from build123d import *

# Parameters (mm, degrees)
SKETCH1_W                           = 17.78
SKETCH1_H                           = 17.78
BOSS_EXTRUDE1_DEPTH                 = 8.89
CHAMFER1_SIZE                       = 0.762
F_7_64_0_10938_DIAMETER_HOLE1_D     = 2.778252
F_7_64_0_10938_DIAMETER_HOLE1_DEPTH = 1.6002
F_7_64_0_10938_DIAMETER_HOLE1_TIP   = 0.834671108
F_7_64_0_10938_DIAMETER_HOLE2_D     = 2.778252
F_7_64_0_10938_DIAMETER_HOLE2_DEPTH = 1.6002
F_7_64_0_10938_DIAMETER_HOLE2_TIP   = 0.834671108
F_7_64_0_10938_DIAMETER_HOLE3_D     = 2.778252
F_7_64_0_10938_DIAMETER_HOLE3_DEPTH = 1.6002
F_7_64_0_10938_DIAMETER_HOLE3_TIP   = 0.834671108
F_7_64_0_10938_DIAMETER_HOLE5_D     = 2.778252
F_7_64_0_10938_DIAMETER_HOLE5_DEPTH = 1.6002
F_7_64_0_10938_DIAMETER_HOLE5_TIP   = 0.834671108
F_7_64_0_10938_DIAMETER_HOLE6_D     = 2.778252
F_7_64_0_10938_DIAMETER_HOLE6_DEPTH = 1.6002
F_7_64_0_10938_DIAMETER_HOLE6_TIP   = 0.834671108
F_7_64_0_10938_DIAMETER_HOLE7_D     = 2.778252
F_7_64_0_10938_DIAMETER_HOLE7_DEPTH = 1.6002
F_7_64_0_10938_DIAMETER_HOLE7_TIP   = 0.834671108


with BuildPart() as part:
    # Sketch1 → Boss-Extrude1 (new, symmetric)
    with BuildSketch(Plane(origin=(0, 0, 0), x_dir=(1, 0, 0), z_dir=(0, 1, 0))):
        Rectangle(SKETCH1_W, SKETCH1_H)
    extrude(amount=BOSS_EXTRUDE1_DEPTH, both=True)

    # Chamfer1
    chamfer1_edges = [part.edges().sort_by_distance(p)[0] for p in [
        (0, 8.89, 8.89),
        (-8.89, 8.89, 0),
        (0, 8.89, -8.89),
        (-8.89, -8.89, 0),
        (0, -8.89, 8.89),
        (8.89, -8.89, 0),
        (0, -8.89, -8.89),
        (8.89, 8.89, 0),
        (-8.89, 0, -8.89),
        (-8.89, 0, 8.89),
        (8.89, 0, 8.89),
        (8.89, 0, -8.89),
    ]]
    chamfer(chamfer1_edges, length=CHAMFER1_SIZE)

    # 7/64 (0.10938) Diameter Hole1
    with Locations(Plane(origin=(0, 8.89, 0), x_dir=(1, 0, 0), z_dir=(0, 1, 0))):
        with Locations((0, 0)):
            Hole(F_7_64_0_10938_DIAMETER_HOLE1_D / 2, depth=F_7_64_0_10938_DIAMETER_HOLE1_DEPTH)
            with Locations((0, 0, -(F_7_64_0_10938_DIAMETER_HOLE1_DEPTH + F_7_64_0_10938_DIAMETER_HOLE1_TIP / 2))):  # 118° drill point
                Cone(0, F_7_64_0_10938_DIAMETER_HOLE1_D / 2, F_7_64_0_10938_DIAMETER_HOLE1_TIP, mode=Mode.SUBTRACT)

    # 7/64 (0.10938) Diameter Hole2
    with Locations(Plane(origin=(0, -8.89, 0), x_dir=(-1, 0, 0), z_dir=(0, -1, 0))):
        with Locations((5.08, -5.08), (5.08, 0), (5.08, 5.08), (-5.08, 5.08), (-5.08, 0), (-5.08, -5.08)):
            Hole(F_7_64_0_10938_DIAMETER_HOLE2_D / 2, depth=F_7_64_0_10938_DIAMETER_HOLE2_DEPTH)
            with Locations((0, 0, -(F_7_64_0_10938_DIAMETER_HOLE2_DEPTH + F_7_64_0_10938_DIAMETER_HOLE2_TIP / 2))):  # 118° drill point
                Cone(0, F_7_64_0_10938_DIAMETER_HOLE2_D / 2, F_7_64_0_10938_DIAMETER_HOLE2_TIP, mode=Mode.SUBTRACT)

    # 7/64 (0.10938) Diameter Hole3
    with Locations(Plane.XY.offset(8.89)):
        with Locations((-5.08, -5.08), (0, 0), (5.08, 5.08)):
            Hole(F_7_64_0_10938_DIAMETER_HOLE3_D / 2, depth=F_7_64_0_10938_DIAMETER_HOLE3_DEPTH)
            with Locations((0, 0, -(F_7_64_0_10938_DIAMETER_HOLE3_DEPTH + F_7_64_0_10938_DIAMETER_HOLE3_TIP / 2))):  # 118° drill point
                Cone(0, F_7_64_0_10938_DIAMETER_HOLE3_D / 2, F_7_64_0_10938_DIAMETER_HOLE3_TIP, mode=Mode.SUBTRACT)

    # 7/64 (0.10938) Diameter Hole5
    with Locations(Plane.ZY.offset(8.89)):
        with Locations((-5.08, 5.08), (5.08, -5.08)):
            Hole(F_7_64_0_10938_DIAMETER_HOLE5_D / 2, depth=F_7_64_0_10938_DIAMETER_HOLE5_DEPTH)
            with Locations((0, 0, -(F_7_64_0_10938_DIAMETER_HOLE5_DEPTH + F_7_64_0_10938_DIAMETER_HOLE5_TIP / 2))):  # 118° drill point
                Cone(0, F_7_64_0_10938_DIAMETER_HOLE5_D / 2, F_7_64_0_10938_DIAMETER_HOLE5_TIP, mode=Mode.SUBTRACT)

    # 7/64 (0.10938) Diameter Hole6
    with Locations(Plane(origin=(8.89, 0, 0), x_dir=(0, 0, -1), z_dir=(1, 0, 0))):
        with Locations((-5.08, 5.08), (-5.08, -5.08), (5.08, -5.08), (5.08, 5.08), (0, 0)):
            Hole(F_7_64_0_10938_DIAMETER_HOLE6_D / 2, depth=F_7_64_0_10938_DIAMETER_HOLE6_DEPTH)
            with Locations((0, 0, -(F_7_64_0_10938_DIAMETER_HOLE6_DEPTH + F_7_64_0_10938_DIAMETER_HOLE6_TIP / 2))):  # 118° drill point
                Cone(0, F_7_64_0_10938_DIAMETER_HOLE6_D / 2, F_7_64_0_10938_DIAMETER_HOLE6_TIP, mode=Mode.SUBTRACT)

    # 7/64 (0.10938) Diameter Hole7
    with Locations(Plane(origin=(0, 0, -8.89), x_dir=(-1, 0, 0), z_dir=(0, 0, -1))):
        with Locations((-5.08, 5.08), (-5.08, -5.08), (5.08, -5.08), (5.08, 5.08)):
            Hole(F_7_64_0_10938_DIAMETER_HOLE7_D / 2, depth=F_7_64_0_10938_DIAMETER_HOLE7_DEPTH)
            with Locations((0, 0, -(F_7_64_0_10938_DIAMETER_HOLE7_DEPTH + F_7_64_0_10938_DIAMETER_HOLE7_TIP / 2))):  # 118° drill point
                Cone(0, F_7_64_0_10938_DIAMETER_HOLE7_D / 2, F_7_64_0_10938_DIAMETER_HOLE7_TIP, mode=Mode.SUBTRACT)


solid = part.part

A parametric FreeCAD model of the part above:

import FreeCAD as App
import Part
import Sketcher
from FreeCAD import Vector
Q = App.Units.Quantity

doc = App.newDocument("Part")
body = doc.addObject("PartDesign::Body", "Body")

# Sketch on XZ plane
sketch1 = body.newObject("Sketcher::SketchObject", "Sketch")
sketch1.AttachmentSupport = (doc.getObject("XZ_Plane"), [""])
sketch1.MapMode = "FlatFace"
sketch1.addGeometry([
    Part.LineSegment(Vector(-9, -9, 0), Vector(-9, 9, 0)),
    Part.LineSegment(Vector(-9, 9, 0), Vector(9, 9, 0)),
    Part.LineSegment(Vector(9, 9, 0), Vector(9, -9, 0)),
    Part.LineSegment(Vector(9, -9, 0), Vector(-9, -9, 0)),
], False)
sketch1.addConstraint([
    Sketcher.Constraint("Coincident", 0, 2, 1, 1),
    Sketcher.Constraint("Coincident", 1, 2, 2, 1),
    Sketcher.Constraint("Coincident", 2, 2, 3, 1),
    Sketcher.Constraint("Coincident", 3, 2, 0, 1),
    Sketcher.Constraint("Vertical", 0),
    Sketcher.Constraint("Horizontal", 1),
    Sketcher.Constraint("Vertical", 2),
    Sketcher.Constraint("Horizontal", 3),
    Sketcher.Constraint("Symmetric", 0, 2, 2, 2, -1, 1),
    Sketcher.Constraint("Equal", 3, 0),
    Sketcher.Constraint("DistanceX", 1, 1, 1, 2, Q("0.7 in")),
])
pad1 = body.newObject("PartDesign::Pad", "Pad")
pad1.Profile = sketch1
pad1.Length = Q("0.7 in")
pad1.Midplane = True
doc.recompute()

chamfer = body.newObject("PartDesign::Chamfer", "Chamfer")
chamfer.Base = (pad1, ["Edge1"])
chamfer.UseAllEdges = True
chamfer.Size = Q("0.03 in")

# Sketch on XZ plane
sketch2 = body.newObject("Sketcher::SketchObject", "Sketch001")
sketch2.AttachmentSupport = (doc.getObject("XZ_Plane"), [""])
sketch2.MapMode = "FlatFace"
sketch2.AttachmentOffset = App.Placement(Vector(0, 0, -0.35 * 25.4), App.Rotation())
sketch2.addGeometry(Part.Circle(Vector(0, 0, 0), Vector(0, 0, 1), 1.4), False)
sketch2.addConstraint([
    Sketcher.Constraint("Coincident", 0, 3, -1, 1),
    Sketcher.Constraint("Diameter", 0, 2.778252),
])
doc.recompute()
hole = body.newObject("PartDesign::Hole", "Hole")
hole.Profile = sketch2
hole.ThreadType = "None"
hole.Diameter = 2.778252
hole.DepthType = "Dimension"
hole.Depth = Q("0.063 in")
hole.DrillPoint = "Angled"
hole.DrillPointAngle = 118
hole.Reversed = True

# Sketch on XZ plane
sketch3 = body.newObject("Sketcher::SketchObject", "Sketch002")
sketch3.AttachmentSupport = (doc.getObject("XZ_Plane"), [""])
sketch3.MapMode = "FlatFace"
sketch3.AttachmentOffset = App.Placement(Vector(0, 0, 0.35 * 25.4), App.Rotation())
sketch3.addGeometry([
    Part.Circle(Vector(-5.1, 5.1, 0), Vector(0, 0, 1), 1.4),  # 0
    Part.Circle(Vector(-5.1, 0, 0), Vector(0, 0, 1), 1.4),  # 1
    Part.Circle(Vector(-5.1, -5.1, 0), Vector(0, 0, 1), 1.4),  # 2
    Part.Circle(Vector(5.1, -5.1, 0), Vector(0, 0, 1), 1.4),  # 3
    Part.Circle(Vector(5.1, 0, 0), Vector(0, 0, 1), 1.4),  # 4
    Part.Circle(Vector(5.1, 5.1, 0), Vector(0, 0, 1), 1.4),  # 5
], False)
sketch3.addConstraint([
    Sketcher.Constraint("Equal", 0, 1),
    Sketcher.Constraint("Equal", 1, 2),
    Sketcher.Constraint("Equal", 2, 3),
    Sketcher.Constraint("Equal", 3, 4),
    Sketcher.Constraint("Equal", 4, 5),
    Sketcher.Constraint("Symmetric", 0, 3, 3, 3, -1, 1),
    Sketcher.Constraint("Symmetric", 1, 3, 4, 3, -1, 1),
    Sketcher.Constraint("Symmetric", 2, 3, 5, 3, -1, 1),
    Sketcher.Constraint("Symmetric", 2, 3, 3, 3, -2),
    Sketcher.Constraint("PointOnObject", 1, 3, -1),
    Sketcher.Constraint("Vertical", 0, 3, 1, 3),
    Sketcher.Constraint("DistanceX", 0, 3, -1, 1, Q("0.2 in")),
    Sketcher.Constraint("DistanceY", -1, 1, 0, 3, Q("0.2 in")),
    Sketcher.Constraint("Diameter", 0, 2.778252),
])
doc.recompute()
hole2 = body.newObject("PartDesign::Hole", "Hole001")
hole2.Profile = sketch3
hole2.ThreadType = "None"
hole2.Diameter = 2.778252
hole2.DepthType = "Dimension"
hole2.Depth = Q("0.063 in")
hole2.DrillPoint = "Angled"
hole2.DrillPointAngle = 118

# Sketch on XY plane
sketch4 = body.newObject("Sketcher::SketchObject", "Sketch003")
sketch4.AttachmentSupport = (doc.getObject("XY_Plane"), [""])
sketch4.MapMode = "FlatFace"
sketch4.AttachmentOffset = App.Placement(Vector(0, 0, 0.35 * 25.4), App.Rotation())
sketch4.addGeometry([
    Part.Circle(Vector(-5.1, -5.1, 0), Vector(0, 0, 1), 1.4),
    Part.Circle(Vector(0, 0, 0), Vector(0, 0, 1), 1.4),
    Part.Circle(Vector(5.1, 5.1, 0), Vector(0, 0, 1), 1.4),
], False)
sketch4.addConstraint([
    Sketcher.Constraint("Coincident", 1, 3, -1, 1),
    Sketcher.Constraint("Equal", 0, 1),
    Sketcher.Constraint("Equal", 1, 2),
    Sketcher.Constraint("Symmetric", 0, 3, 2, 3, -1, 1),
    Sketcher.Constraint("DistanceX", 0, 3, -1, 1, Q("0.2 in")),
    Sketcher.Constraint("DistanceY", 0, 3, -1, 1, Q("0.2 in")),
    Sketcher.Constraint("Diameter", 0, 2.778252),
])
doc.recompute()
hole3 = body.newObject("PartDesign::Hole", "Hole002")
hole3.Profile = sketch4
hole3.ThreadType = "None"
hole3.Diameter = 2.778252
hole3.DepthType = "Dimension"
hole3.Depth = Q("0.063 in")
hole3.DrillPoint = "Angled"
hole3.DrillPointAngle = 118

# Sketch on YZ plane
sketch5 = body.newObject("Sketcher::SketchObject", "Sketch004")
sketch5.AttachmentSupport = (doc.getObject("YZ_Plane"), [""])
sketch5.MapMode = "FlatFace"
sketch5.AttachmentOffset = App.Placement(Vector(0, 0, -0.35 * 25.4), App.Rotation())
sketch5.addGeometry([
    Part.Circle(Vector(5.1, -5.1, 0), Vector(0, 0, 1), 1.4),
    Part.Circle(Vector(-5.1, 5.1, 0), Vector(0, 0, 1), 1.4),
], False)
sketch5.addConstraint([
    Sketcher.Constraint("Equal", 0, 1),
    Sketcher.Constraint("Symmetric", 0, 3, 1, 3, -1, 1),
    Sketcher.Constraint("DistanceX", -1, 1, 0, 3, Q("0.2 in")),
    Sketcher.Constraint("DistanceY", 0, 3, -1, 1, Q("0.2 in")),
    Sketcher.Constraint("Diameter", 0, 2.778252),
])
doc.recompute()
hole4 = body.newObject("PartDesign::Hole", "Hole003")
hole4.Profile = sketch5
hole4.ThreadType = "None"
hole4.Diameter = 2.778252
hole4.DepthType = "Dimension"
hole4.Depth = Q("0.063 in")
hole4.DrillPoint = "Angled"
hole4.DrillPointAngle = 118
hole4.Reversed = True

# Sketch on YZ plane
sketch6 = body.newObject("Sketcher::SketchObject", "Sketch005")
sketch6.AttachmentSupport = (doc.getObject("YZ_Plane"), [""])
sketch6.MapMode = "FlatFace"
sketch6.AttachmentOffset = App.Placement(Vector(0, 0, 0.35 * 25.4), App.Rotation())
sketch6.addGeometry([
    Part.Circle(Vector(5.1, 5.1, 0), Vector(0, 0, 1), 1.4),  # 0
    Part.Circle(Vector(-5.1, 5.1, 0), Vector(0, 0, 1), 1.4),  # 1
    Part.Circle(Vector(-5.1, -5.1, 0), Vector(0, 0, 1), 1.4),  # 2
    Part.Circle(Vector(5.1, -5.1, 0), Vector(0, 0, 1), 1.4),  # 3
    Part.Circle(Vector(0, 0, 0), Vector(0, 0, 1), 1.4),  # 4
], False)
sketch6.addConstraint([
    Sketcher.Constraint("Coincident", 4, 3, -1, 1),
    Sketcher.Constraint("Equal", 0, 1),
    Sketcher.Constraint("Equal", 1, 2),
    Sketcher.Constraint("Equal", 2, 3),
    Sketcher.Constraint("Equal", 3, 4),
    Sketcher.Constraint("Symmetric", 0, 3, 2, 3, -1, 1),
    Sketcher.Constraint("Symmetric", 1, 3, 3, 3, -1, 1),
    Sketcher.Constraint("Symmetric", 0, 3, 1, 3, -2),
    Sketcher.Constraint("DistanceX", -1, 1, 0, 3, Q("0.2 in")),
    Sketcher.Constraint("DistanceY", -1, 1, 0, 3, Q("0.2 in")),
    Sketcher.Constraint("Diameter", 0, 2.778252),
])
doc.recompute()
hole5 = body.newObject("PartDesign::Hole", "Hole004")
hole5.Profile = sketch6
hole5.ThreadType = "None"
hole5.Diameter = 2.778252
hole5.DepthType = "Dimension"
hole5.Depth = Q("0.063 in")
hole5.DrillPoint = "Angled"
hole5.DrillPointAngle = 118

# Sketch on XY plane
sketch7 = body.newObject("Sketcher::SketchObject", "Sketch006")
sketch7.AttachmentSupport = (doc.getObject("XY_Plane"), [""])
sketch7.MapMode = "FlatFace"
sketch7.AttachmentOffset = App.Placement(Vector(0, 0, -0.35 * 25.4), App.Rotation())
sketch7.addGeometry([
    Part.Circle(Vector(5.1, 5.1, 0), Vector(0, 0, 1), 1.4),
    Part.Circle(Vector(5.1, -5.1, 0), Vector(0, 0, 1), 1.4),
    Part.Circle(Vector(-5.1, -5.1, 0), Vector(0, 0, 1), 1.4),
    Part.Circle(Vector(-5.1, 5.1, 0), Vector(0, 0, 1), 1.4),
], False)
sketch7.addConstraint([
    Sketcher.Constraint("Equal", 0, 1),
    Sketcher.Constraint("Equal", 1, 2),
    Sketcher.Constraint("Equal", 2, 3),
    Sketcher.Constraint("Symmetric", 0, 3, 2, 3, -1, 1),
    Sketcher.Constraint("Symmetric", 1, 3, 3, 3, -1, 1),
    Sketcher.Constraint("Symmetric", 1, 3, 2, 3, -2),
    Sketcher.Constraint("DistanceX", -1, 1, 0, 3, Q("0.2 in")),
    Sketcher.Constraint("DistanceY", -1, 1, 0, 3, Q("0.2 in")),
    Sketcher.Constraint("Diameter", 0, 2.778252),
])
doc.recompute()
hole6 = body.newObject("PartDesign::Hole", "Hole005")
hole6.Profile = sketch7
hole6.ThreadType = "None"
hole6.Diameter = 2.778252
hole6.DepthType = "Dimension"
hole6.Depth = Q("0.063 in")
hole6.DrillPoint = "Angled"
hole6.DrillPointAngle = 118
hole6.Reversed = True

doc.recompute()
